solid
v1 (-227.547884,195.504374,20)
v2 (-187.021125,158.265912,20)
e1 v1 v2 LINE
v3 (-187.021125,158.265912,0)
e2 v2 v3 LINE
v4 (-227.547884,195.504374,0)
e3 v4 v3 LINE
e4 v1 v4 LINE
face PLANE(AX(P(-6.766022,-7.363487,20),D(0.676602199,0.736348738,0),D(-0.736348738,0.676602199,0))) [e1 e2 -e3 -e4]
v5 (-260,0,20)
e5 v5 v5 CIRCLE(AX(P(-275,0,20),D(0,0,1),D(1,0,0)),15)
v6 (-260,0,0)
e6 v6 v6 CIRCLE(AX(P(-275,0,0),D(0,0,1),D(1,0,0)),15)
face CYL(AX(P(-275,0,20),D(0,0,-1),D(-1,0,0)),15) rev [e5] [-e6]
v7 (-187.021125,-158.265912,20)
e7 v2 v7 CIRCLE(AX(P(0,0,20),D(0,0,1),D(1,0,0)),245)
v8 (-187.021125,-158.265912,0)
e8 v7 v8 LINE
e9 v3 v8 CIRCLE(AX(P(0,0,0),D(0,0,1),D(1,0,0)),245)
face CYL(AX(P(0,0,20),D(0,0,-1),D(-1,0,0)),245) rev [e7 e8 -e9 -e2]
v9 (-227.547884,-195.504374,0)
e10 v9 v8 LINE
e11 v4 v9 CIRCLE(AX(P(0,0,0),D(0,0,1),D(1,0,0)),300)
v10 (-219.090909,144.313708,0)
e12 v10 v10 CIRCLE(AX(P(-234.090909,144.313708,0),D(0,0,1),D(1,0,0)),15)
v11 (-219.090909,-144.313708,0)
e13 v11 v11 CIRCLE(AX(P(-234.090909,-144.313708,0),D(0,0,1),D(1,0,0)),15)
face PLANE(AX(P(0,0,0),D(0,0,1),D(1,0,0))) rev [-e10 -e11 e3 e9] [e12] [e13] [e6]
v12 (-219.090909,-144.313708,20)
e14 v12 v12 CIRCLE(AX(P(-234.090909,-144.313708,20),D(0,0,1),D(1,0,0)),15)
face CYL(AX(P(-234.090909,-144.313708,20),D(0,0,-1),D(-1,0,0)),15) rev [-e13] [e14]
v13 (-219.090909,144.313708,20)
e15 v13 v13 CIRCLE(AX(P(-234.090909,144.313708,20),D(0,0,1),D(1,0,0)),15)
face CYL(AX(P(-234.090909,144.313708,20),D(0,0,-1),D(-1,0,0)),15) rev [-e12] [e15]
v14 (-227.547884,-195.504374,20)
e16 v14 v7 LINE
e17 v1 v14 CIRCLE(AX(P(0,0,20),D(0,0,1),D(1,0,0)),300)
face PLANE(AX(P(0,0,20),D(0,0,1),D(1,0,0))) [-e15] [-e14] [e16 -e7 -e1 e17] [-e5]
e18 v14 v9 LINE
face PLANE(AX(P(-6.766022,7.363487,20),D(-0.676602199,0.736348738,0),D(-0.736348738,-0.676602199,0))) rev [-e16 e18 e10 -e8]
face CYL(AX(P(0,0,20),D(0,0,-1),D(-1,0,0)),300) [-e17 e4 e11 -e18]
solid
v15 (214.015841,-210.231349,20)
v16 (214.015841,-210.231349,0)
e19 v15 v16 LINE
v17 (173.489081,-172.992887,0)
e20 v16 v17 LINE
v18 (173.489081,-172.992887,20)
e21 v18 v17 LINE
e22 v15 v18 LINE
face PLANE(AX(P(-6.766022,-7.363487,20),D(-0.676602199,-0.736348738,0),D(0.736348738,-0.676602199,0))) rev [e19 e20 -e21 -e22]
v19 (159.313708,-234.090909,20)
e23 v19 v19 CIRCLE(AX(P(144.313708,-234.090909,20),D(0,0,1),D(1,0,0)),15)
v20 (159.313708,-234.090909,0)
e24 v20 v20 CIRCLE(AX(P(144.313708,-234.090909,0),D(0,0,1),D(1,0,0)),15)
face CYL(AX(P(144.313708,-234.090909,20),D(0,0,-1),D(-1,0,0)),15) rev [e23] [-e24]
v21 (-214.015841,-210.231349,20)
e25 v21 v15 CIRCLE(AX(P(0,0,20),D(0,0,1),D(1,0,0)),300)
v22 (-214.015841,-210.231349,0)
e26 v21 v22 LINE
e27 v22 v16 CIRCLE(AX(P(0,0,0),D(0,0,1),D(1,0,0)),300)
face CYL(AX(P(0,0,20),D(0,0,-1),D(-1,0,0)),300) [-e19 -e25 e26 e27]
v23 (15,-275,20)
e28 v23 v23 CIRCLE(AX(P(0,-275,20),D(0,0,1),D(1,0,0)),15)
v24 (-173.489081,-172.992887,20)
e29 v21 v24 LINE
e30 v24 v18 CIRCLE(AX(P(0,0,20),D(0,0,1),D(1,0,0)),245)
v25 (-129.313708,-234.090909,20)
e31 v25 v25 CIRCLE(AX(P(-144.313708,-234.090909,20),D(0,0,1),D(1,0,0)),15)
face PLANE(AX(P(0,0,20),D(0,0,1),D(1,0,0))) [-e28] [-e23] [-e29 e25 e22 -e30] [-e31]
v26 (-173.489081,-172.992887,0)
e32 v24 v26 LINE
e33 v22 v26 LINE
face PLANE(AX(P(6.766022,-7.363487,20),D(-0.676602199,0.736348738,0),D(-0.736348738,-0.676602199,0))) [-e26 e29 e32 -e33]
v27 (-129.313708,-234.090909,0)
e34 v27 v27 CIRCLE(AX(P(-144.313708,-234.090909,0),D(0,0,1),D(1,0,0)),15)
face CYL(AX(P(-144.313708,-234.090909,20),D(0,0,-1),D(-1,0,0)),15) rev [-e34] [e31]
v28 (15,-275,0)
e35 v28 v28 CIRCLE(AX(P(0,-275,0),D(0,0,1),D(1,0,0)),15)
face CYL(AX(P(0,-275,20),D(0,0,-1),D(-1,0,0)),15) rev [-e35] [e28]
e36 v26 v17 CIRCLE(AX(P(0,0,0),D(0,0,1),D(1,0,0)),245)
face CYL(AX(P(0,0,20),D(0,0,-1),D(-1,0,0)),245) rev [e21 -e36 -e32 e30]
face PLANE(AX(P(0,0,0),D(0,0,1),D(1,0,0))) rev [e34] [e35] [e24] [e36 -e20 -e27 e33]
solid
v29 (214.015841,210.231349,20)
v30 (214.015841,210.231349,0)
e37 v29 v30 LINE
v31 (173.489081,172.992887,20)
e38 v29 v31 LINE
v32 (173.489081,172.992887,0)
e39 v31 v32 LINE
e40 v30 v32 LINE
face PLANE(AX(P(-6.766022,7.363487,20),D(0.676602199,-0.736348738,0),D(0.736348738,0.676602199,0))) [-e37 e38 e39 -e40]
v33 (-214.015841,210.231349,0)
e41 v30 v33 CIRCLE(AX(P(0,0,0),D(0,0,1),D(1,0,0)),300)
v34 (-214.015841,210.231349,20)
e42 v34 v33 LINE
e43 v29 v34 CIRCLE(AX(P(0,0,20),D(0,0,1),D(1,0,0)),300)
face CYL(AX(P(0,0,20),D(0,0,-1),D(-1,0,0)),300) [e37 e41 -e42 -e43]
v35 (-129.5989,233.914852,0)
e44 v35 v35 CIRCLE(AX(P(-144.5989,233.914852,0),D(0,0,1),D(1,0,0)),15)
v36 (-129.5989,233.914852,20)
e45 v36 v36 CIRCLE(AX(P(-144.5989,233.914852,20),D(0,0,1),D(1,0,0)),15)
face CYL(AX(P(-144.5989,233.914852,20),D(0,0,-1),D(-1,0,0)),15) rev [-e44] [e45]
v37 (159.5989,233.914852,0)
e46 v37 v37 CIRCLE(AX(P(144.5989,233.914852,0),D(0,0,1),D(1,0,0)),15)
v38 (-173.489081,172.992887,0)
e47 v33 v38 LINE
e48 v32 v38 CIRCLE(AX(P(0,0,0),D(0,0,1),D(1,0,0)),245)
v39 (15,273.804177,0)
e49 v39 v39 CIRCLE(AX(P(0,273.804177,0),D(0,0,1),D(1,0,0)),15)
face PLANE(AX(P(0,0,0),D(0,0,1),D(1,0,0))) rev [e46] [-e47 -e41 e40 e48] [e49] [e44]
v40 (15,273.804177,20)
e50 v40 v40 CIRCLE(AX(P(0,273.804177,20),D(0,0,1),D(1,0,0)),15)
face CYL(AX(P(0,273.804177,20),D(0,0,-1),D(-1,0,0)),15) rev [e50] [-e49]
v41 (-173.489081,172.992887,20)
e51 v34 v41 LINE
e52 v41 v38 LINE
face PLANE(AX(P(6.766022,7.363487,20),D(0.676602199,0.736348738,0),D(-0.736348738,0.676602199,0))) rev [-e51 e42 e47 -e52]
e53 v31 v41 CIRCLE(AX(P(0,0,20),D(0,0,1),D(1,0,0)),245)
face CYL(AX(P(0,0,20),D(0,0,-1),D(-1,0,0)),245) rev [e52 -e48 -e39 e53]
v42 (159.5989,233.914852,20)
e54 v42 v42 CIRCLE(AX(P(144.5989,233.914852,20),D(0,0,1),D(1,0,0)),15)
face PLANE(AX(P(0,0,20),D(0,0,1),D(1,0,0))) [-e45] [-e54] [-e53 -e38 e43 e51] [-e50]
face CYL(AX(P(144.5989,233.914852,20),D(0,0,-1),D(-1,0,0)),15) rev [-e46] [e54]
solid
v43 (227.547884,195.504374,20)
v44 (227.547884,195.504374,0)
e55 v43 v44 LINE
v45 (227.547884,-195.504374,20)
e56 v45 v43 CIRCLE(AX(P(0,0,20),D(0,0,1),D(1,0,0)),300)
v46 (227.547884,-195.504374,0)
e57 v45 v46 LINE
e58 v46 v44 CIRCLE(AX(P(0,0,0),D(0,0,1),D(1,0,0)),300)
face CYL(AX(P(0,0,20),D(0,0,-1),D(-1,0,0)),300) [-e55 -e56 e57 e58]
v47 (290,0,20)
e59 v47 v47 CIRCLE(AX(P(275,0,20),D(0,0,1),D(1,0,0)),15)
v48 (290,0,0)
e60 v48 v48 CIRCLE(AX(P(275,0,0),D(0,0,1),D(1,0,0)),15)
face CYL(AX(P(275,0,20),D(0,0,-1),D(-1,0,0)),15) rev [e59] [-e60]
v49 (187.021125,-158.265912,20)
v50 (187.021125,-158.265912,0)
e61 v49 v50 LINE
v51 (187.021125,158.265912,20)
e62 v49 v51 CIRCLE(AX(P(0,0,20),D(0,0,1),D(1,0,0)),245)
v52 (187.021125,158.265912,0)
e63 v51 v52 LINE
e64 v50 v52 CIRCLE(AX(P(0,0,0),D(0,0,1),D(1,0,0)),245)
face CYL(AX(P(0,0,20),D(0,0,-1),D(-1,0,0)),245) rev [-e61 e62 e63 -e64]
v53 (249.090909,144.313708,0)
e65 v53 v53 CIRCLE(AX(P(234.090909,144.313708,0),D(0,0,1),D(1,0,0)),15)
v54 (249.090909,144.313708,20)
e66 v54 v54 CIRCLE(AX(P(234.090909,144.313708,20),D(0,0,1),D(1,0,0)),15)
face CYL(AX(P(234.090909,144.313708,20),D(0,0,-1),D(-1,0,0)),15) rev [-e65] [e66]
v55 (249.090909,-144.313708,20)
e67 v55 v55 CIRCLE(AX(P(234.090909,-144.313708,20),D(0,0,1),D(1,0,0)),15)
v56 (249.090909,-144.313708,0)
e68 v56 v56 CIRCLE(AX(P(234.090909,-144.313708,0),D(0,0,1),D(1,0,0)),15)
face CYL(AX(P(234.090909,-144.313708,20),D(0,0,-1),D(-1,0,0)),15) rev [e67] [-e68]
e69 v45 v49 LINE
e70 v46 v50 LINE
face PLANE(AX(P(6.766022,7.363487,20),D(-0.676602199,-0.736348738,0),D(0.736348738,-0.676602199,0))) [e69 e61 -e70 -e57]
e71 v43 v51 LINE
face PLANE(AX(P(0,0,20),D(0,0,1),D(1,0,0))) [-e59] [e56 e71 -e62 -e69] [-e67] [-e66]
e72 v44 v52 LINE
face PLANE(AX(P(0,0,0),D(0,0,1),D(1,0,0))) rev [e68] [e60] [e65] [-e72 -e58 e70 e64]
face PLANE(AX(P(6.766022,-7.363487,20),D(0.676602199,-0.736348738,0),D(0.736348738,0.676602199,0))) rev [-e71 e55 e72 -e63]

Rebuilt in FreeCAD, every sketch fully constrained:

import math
import FreeCAD as App
import Part
import Sketcher
Q = App.Units.Quantity

doc = App.newDocument("Part")
body = doc.addObject("PartDesign::Body", "Body")

# Sketch on XY plane
sketch1 = doc.addObject("Sketcher::SketchObject", "Sketch")
body.addObject(sketch1)
sketch1.AttachmentSupport = (doc.XY_Plane, [""])
sketch1.MapMode = "FlatFace"
sketch1.addGeometry(Part.LineSegment(App.Vector(-187.021125, 158.265912, 0), App.Vector(-227.547884, 195.504374, 0)), False)
sketch1.addGeometry(Part.ArcOfCircle(Part.Circle(App.Vector(0, 0, 0), App.Vector(0, 0, 1), 300), math.radians(139.331519), math.radians(220.668481)), False)
sketch1.addGeometry(Part.LineSegment(App.Vector(-227.547884, -195.504374, 0), App.Vector(-187.021125, -158.265912, 0)), False)
sketch1.addGeometry(Part.ArcOfCircle(Part.Circle(App.Vector(0, 0, 0), App.Vector(0, 0, 1), 245), math.radians(139.760559), math.radians(220.239441)), False)
sketch1.addGeometry(Part.Circle(App.Vector(-234.090909, -144.313708, 0), App.Vector(0, 0, 1), 15), False)
sketch1.addGeometry(Part.Circle(App.Vector(-275, 0, 0), App.Vector(0, 0, 1), 15), False)
sketch1.addGeometry(Part.Circle(App.Vector(-234.090909, 144.313708, 0), App.Vector(0, 0, 1), 15), False)
sketch1.addConstraint(Sketcher.Constraint("Coincident", 0, 2, 1, 1))
sketch1.addConstraint(Sketcher.Constraint("Coincident", 1, 2, 2, 1))
sketch1.addConstraint(Sketcher.Constraint("Coincident", 2, 2, 3, 2))
sketch1.addConstraint(Sketcher.Constraint("Coincident", 3, 1, 0, 1))
sketch1.addConstraint(Sketcher.Constraint("Coincident", 1, 3, -1, 1))
sketch1.addConstraint(Sketcher.Constraint("Coincident", 3, 3, -1, 1))
sketch1.addConstraint(Sketcher.Constraint("Equal", 4, 5))
sketch1.addConstraint(Sketcher.Constraint("Equal", 5, 6))
sketch1.addConstraint(Sketcher.Constraint("Symmetric", 4, 3, 6, 3, -1))
sketch1.addConstraint(Sketcher.Constraint("PointOnObject", 5, 3, -1))
sketch1.addConstraint(Sketcher.Constraint("Vertical", 0, 2, 1, 2))
sketch1.addConstraint(Sketcher.Constraint("Vertical", 2, 2, 3, 1))
sketch1.addConstraint(Sketcher.Constraint("Diameter", 4, Q("30 mm")))
sketch1.addConstraint(Sketcher.Constraint("Radius", 1, Q("300 mm")))
sketch1.addConstraint(Sketcher.Constraint("Radius", 3, Q("245 mm")))
sketch1.addConstraint(Sketcher.Constraint("DistanceX", 5, 3, -1, 1, Q("275 mm")))
sketch1.addConstraint(Sketcher.Constraint("DistanceX", 4, 3, -1, 1, Q("234.090909 mm")))
sketch1.addConstraint(Sketcher.Constraint("DistanceY", 2, 2, -1, 1, Q("158.265912 mm")))
sketch1.addConstraint(Sketcher.Constraint("DistanceY", 4, 3, 0, 2, Q("339.818082 mm")))
sketch1.addConstraint(Sketcher.Constraint("DistanceX", 0, 2, 3, 1, Q("40.52676 mm")))
pad1 = doc.addObject("PartDesign::Pad", "Pad")
body.addObject(pad1)
pad1.Profile = sketch1
pad1.Length = 20
body2 = doc.addObject("PartDesign::Body", "Body001")

# Sketch on XY plane
sketch2 = doc.addObject("Sketcher::SketchObject", "Sketch001")
body2.addObject(sketch2)
sketch2.AttachmentSupport = (doc.getObject("XY_Plane001"), [""])
sketch2.MapMode = "FlatFace"
sketch2.addGeometry(Part.ArcOfCircle(Part.Circle(App.Vector(0, 0, 0), App.Vector(0, 0, 1), 300), math.radians(44.488907), math.radians(135.511093)), False)
sketch2.addGeometry(Part.LineSegment(App.Vector(-214.015841, 210.231349, 0), App.Vector(-173.489081, 172.992887, 0)), False)
sketch2.addGeometry(Part.ArcOfCircle(Part.Circle(App.Vector(0, 0, 0), App.Vector(0, 0, 1), 245), math.radians(44.917947), math.radians(135.082053)), False)
sketch2.addGeometry(Part.LineSegment(App.Vector(173.489081, 172.992887, 0), App.Vector(214.015841, 210.231349, 0)), False)
sketch2.addGeometry(Part.Circle(App.Vector(-144.5989, 233.914852, 0), App.Vector(0, 0, 1), 15), False)
sketch2.addGeometry(Part.Circle(App.Vector(144.5989, 233.914852, 0), App.Vector(0, 0, 1), 15), False)
sketch2.addGeometry(Part.Circle(App.Vector(0, 273.804177, 0), App.Vector(0, 0, 1), 15), False)
sketch2.addConstraint(Sketcher.Constraint("Coincident", 0, 2, 1, 1))
sketch2.addConstraint(Sketcher.Constraint("Coincident", 1, 2, 2, 2))
sketch2.addConstraint(Sketcher.Constraint("Coincident", 2, 1, 3, 1))
sketch2.addConstraint(Sketcher.Constraint("Coincident", 3, 2, 0, 1))
sketch2.addConstraint(Sketcher.Constraint("Coincident", 0, 3, -1, 1))
sketch2.addConstraint(Sketcher.Constraint("Coincident", 2, 3, -1, 1))
sketch2.addConstraint(Sketcher.Constraint("Equal", 4, 5))
sketch2.addConstraint(Sketcher.Constraint("Equal", 5, 6))
sketch2.addConstraint(Sketcher.Constraint("Symmetric", 4, 3, 5, 3, -2))
sketch2.addConstraint(Sketcher.Constraint("PointOnObject", 6, 3, -2))
sketch2.addConstraint(Sketcher.Constraint("Horizontal", 1, 2, 2, 1))
sketch2.addConstraint(Sketcher.Constraint("Horizontal", 0, 2, 3, 2))
sketch2.addConstraint(Sketcher.Constraint("Diameter", 4, Q("30 mm")))
sketch2.addConstraint(Sketcher.Constraint("Radius", 0, Q("300 mm")))
sketch2.addConstraint(Sketcher.Constraint("Radius", 2, Q("245 mm")))
sketch2.addConstraint(Sketcher.Constraint("DistanceX", 4, 3, -1, 1, Q("144.5989 mm")))
sketch2.addConstraint(Sketcher.Constraint("DistanceX", 0, 2, -1, 1, Q("214.015841 mm")))
sketch2.addConstraint(Sketcher.Constraint("DistanceX", 1, 2, -1, 1, Q("173.489081 mm")))
sketch2.addConstraint(Sketcher.Constraint("DistanceY", 1, 2, 6, 3, Q("100.81129 mm")))
sketch2.addConstraint(Sketcher.Constraint("DistanceY", -1, 1, 4, 3, Q("233.914852 mm")))
pad2 = doc.addObject("PartDesign::Pad", "Pad001")
body2.addObject(pad2)
pad2.Profile = sketch2
pad2.Length = 20
body3 = doc.addObject("PartDesign::Body", "Body002")

# Sketch on XY plane
sketch3 = doc.addObject("Sketcher::SketchObject", "Sketch002")
body3.addObject(sketch3)
sketch3.AttachmentSupport = (doc.getObject("XY_Plane002"), [""])
sketch3.MapMode = "FlatFace"
sketch3.addGeometry(Part.ArcOfCircle(Part.Circle(App.Vector(0, 0, 0), App.Vector(0, 0, 1), 300), math.radians(-40.668481), math.radians(40.668481)), False)
sketch3.addGeometry(Part.LineSegment(App.Vector(227.547884, 195.504374, 0), App.Vector(187.021125, 158.265912, 0)), False)
sketch3.addGeometry(Part.ArcOfCircle(Part.Circle(App.Vector(0, 0, 0), App.Vector(0, 0, 1), 245), math.radians(-40.239441), math.radians(40.239441)), False)
sketch3.addGeometry(Part.LineSegment(App.Vector(187.021125, -158.265912, 0), App.Vector(227.547884, -195.504374, 0)), False)
sketch3.addGeometry(Part.Circle(App.Vector(234.090909, -144.313708, 0), App.Vector(0, 0, 1), 15), False)
sketch3.addGeometry(Part.Circle(App.Vector(234.090909, 144.313708, 0), App.Vector(0, 0, 1), 15), False)
sketch3.addGeometry(Part.Circle(App.Vector(275, 0, 0), App.Vector(0, 0, 1), 15), False)
sketch3.addConstraint(Sketcher.Constraint("Coincident", 0, 2, 1, 1))
sketch3.addConstraint(Sketcher.Constraint("Coincident", 1, 2, 2, 2))
sketch3.addConstraint(Sketcher.Constraint("Coincident", 2, 1, 3, 1))
sketch3.addConstraint(Sketcher.Constraint("Coincident", 3, 2, 0, 1))
sketch3.addConstraint(Sketcher.Constraint("Coincident", 0, 3, -1, 1))
sketch3.addConstraint(Sketcher.Constraint("Coincident", 2, 3, -1, 1))
sketch3.addConstraint(Sketcher.Constraint("Equal", 4, 5))
sketch3.addConstraint(Sketcher.Constraint("Equal", 5, 6))
sketch3.addConstraint(Sketcher.Constraint("Symmetric", 4, 3, 5, 3, -1))
sketch3.addConstraint(Sketcher.Constraint("PointOnObject", 6, 3, -1))
sketch3.addConstraint(Sketcher.Constraint("Vertical", 1, 2, 2, 1))
sketch3.addConstraint(Sketcher.Constraint("Vertical", 0, 2, 3, 2))
sketch3.addConstraint(Sketcher.Constraint("Diameter", 4, Q("30 mm")))
sketch3.addConstraint(Sketcher.Constraint("Radius", 0, Q("300 mm")))
sketch3.addConstraint(Sketcher.Constraint("Radius", 2, Q("245 mm")))
sketch3.addConstraint(Sketcher.Constraint("DistanceX", -1, 1, 6, 3, Q("275 mm")))
sketch3.addConstraint(Sketcher.Constraint("DistanceX", -1, 1, 4, 3, Q("234.090909 mm")))
sketch3.addConstraint(Sketcher.Constraint("DistanceY", -1, 1, 1, 2, Q("158.265912 mm")))
sketch3.addConstraint(Sketcher.Constraint("DistanceY", 4, 3, 0, 2, Q("339.818082 mm")))
sketch3.addConstraint(Sketcher.Constraint("DistanceY", 2, 1, 5, 3, Q("302.57962 mm")))
pad3 = doc.addObject("PartDesign::Pad", "Pad002")
body3.addObject(pad3)
pad3.Profile = sketch3
pad3.Length = 20
body4 = doc.addObject("PartDesign::Body", "Body003")

# Sketch on XY plane
sketch4 = doc.addObject("Sketcher::SketchObject", "Sketch003")
body4.addObject(sketch4)
sketch4.AttachmentSupport = (doc.getObject("XY_Plane003"), [""])
sketch4.MapMode = "FlatFace"
sketch4.addGeometry(Part.ArcOfCircle(Part.Circle(App.Vector(0, 0, 0), App.Vector(0, 0, 1), 300), math.radians(-135.511093), math.radians(-44.488907)), False)
sketch4.addGeometry(Part.LineSegment(App.Vector(214.015841, -210.231349, 0), App.Vector(173.489081, -172.992887, 0)), False)
sketch4.addGeometry(Part.ArcOfCircle(Part.Circle(App.Vector(0, 0, 0), App.Vector(0, 0, 1), 245), math.radians(-135.082053), math.radians(-44.917947)), False)
sketch4.addGeometry(Part.LineSegment(App.Vector(-173.489081, -172.992887, 0), App.Vector(-214.015841, -210.231349, 0)), False)
sketch4.addGeometry(Part.Circle(App.Vector(0, -275, 0), App.Vector(0, 0, 1), 15), False)
sketch4.addGeometry(Part.Circle(App.Vector(-144.313708, -234.090909, 0), App.Vector(0, 0, 1), 15), False)
sketch4.addGeometry(Part.Circle(App.Vector(144.313708, -234.090909, 0), App.Vector(0, 0, 1), 15), False)
sketch4.addConstraint(Sketcher.Constraint("Coincident", 0, 2, 1, 1))
sketch4.addConstraint(Sketcher.Constraint("Coincident", 1, 2, 2, 2))
sketch4.addConstraint(Sketcher.Constraint("Coincident", 2, 1, 3, 1))
sketch4.addConstraint(Sketcher.Constraint("Coincident", 3, 2, 0, 1))
sketch4.addConstraint(Sketcher.Constraint("Coincident", 0, 3, -1, 1))
sketch4.addConstraint(Sketcher.Constraint("Coincident", 2, 3, -1, 1))
sketch4.addConstraint(Sketcher.Constraint("Equal", 4, 5))
sketch4.addConstraint(Sketcher.Constraint("Equal", 5, 6))
sketch4.addConstraint(Sketcher.Constraint("Symmetric", 5, 3, 6, 3, -2))
sketch4.addConstraint(Sketcher.Constraint("PointOnObject", 4, 3, -2))
sketch4.addConstraint(Sketcher.Constraint("Horizontal", 1, 2, 2, 1))
sketch4.addConstraint(Sketcher.Constraint("Horizontal", 0, 2, 3, 2))
sketch4.addConstraint(Sketcher.Constraint("Diameter", 4, Q("30 mm")))
sketch4.addConstraint(Sketcher.Constraint("Radius", 0, Q("300 mm")))
sketch4.addConstraint(Sketcher.Constraint("Radius", 2, Q("245 mm")))
sketch4.addConstraint(Sketcher.Constraint("DistanceY", 4, 3, -1, 1, Q("275 mm")))
sketch4.addConstraint(Sketcher.Constraint("DistanceY", 5, 3, -1, 1, Q("234.090909 mm")))
sketch4.addConstraint(Sketcher.Constraint("DistanceX", -1, 1, 0, 2, Q("214.015841 mm")))
sketch4.addConstraint(Sketcher.Constraint("DistanceX", -1, 1, 1, 2, Q("173.489081 mm")))
sketch4.addConstraint(Sketcher.Constraint("DistanceX", 5, 3, 0, 2, Q("358.329548 mm")))
pad4 = doc.addObject("PartDesign::Pad", "Pad003")
body4.addObject(pad4)
pad4.Profile = sketch4
pad4.Length = 20

doc.recompute()
